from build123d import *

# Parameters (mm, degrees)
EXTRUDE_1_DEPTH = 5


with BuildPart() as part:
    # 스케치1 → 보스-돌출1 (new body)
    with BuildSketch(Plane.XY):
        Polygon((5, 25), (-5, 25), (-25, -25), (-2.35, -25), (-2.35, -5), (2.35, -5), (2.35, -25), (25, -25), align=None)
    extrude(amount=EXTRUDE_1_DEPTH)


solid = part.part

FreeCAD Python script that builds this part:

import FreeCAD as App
import Part
import Sketcher

doc = App.newDocument("Part")
params = doc.addObject("Spreadsheet::Sheet", "Params")
for row, (alias, value) in enumerate([
    ("sketch1_width", "10 mm"),
    ("sketch1_height", "20 mm"),
    ("sketch1_width2", "4.7 mm"),
    ("pad1_length", "5 mm"),
], start=1):
    params.set(f"A{row}", alias)
    params.set(f"B{row}", "=" + value)
    params.setAlias(f"B{row}", alias)

body = doc.addObject("PartDesign::Body", "Body")

# Sketch on XY plane
sketch1 = body.newObject("Sketcher::SketchObject", "Sketch")
sketch1.AttachmentSupport = (doc.getObject("XY_Plane"), [""])
sketch1.MapMode = "FlatFace"
sketch1.addGeometry([
    Part.LineSegment(App.Vector(5, 25, 0), App.Vector(-5, 25, 0)),  # 0
    Part.LineSegment(App.Vector(-5, 25, 0), App.Vector(-25, -25, 0)),  # 1
    Part.LineSegment(App.Vector(-25, -25, 0), App.Vector(-2.4, -25, 0)),  # 2
    Part.LineSegment(App.Vector(-2.4, -25, 0), App.Vector(-2.4, -5, 0)),  # 3
    Part.LineSegment(App.Vector(-2.4, -5, 0), App.Vector(2.4, -5, 0)),  # 4
    Part.LineSegment(App.Vector(2.4, -5, 0), App.Vector(2.4, -25, 0)),  # 5
    Part.LineSegment(App.Vector(2.4, -25, 0), App.Vector(25, -25, 0)),  # 6
    Part.LineSegment(App.Vector(25, -25, 0), App.Vector(5, 25, 0)),  # 7
], False)
sketch1.addConstraint([
    Sketcher.Constraint("Coincident", 0, 2, 1, 1),
    Sketcher.Constraint("Coincident", 1, 2, 2, 1),
    Sketcher.Constraint("Coincident", 2, 2, 3, 1),
    Sketcher.Constraint("Coincident", 3, 2, 4, 1),
    Sketcher.Constraint("Coincident", 4, 2, 5, 1),
    Sketcher.Constraint("Coincident", 5, 2, 6, 1),
    Sketcher.Constraint("Coincident", 6, 2, 7, 1),
    Sketcher.Constraint("Coincident", 7, 2, 0, 1),
    Sketcher.Constraint("Horizontal", 0),
    Sketcher.Constraint("Horizontal", 2),
    Sketcher.Constraint("Vertical", 3),
    Sketcher.Constraint("Horizontal", 4),
    Sketcher.Constraint("Vertical", 5),
    Sketcher.Constraint("Horizontal", 6),
    Sketcher.Constraint("Symmetric", 2, 2, 5, 2, -2),
    Sketcher.Constraint("Equal", 2, 6),
    Sketcher.Constraint("Equal", 1, 7),
    Sketcher.Constraint("DistanceX", 0, 2, 0, 1, 10.0),
    Sketcher.Constraint("DistanceY", 3, 1, 3, 2, 20.0),
    Sketcher.Constraint("DistanceX", 4, 1, 4, 2, 4.7),
    Sketcher.Constraint("DistanceY", -1, 1, 0, 2, 25.0),
    Sketcher.Constraint("DistanceX", 1, 2, -1, 1, 25.0),
    Sketcher.Constraint("DistanceY", 1, 2, -1, 1, 25.0),
])
sketch1.setExpression("Constraints[17]", "Params.sketch1_width")
sketch1.setExpression("Constraints[18]", "Params.sketch1_height")
sketch1.setExpression("Constraints[19]", "Params.sketch1_width2")
pad1 = body.newObject("PartDesign::Pad", "Pad")
pad1.Profile = sketch1
pad1.setExpression("Length", "Params.pad1_length")

doc.recompute()
